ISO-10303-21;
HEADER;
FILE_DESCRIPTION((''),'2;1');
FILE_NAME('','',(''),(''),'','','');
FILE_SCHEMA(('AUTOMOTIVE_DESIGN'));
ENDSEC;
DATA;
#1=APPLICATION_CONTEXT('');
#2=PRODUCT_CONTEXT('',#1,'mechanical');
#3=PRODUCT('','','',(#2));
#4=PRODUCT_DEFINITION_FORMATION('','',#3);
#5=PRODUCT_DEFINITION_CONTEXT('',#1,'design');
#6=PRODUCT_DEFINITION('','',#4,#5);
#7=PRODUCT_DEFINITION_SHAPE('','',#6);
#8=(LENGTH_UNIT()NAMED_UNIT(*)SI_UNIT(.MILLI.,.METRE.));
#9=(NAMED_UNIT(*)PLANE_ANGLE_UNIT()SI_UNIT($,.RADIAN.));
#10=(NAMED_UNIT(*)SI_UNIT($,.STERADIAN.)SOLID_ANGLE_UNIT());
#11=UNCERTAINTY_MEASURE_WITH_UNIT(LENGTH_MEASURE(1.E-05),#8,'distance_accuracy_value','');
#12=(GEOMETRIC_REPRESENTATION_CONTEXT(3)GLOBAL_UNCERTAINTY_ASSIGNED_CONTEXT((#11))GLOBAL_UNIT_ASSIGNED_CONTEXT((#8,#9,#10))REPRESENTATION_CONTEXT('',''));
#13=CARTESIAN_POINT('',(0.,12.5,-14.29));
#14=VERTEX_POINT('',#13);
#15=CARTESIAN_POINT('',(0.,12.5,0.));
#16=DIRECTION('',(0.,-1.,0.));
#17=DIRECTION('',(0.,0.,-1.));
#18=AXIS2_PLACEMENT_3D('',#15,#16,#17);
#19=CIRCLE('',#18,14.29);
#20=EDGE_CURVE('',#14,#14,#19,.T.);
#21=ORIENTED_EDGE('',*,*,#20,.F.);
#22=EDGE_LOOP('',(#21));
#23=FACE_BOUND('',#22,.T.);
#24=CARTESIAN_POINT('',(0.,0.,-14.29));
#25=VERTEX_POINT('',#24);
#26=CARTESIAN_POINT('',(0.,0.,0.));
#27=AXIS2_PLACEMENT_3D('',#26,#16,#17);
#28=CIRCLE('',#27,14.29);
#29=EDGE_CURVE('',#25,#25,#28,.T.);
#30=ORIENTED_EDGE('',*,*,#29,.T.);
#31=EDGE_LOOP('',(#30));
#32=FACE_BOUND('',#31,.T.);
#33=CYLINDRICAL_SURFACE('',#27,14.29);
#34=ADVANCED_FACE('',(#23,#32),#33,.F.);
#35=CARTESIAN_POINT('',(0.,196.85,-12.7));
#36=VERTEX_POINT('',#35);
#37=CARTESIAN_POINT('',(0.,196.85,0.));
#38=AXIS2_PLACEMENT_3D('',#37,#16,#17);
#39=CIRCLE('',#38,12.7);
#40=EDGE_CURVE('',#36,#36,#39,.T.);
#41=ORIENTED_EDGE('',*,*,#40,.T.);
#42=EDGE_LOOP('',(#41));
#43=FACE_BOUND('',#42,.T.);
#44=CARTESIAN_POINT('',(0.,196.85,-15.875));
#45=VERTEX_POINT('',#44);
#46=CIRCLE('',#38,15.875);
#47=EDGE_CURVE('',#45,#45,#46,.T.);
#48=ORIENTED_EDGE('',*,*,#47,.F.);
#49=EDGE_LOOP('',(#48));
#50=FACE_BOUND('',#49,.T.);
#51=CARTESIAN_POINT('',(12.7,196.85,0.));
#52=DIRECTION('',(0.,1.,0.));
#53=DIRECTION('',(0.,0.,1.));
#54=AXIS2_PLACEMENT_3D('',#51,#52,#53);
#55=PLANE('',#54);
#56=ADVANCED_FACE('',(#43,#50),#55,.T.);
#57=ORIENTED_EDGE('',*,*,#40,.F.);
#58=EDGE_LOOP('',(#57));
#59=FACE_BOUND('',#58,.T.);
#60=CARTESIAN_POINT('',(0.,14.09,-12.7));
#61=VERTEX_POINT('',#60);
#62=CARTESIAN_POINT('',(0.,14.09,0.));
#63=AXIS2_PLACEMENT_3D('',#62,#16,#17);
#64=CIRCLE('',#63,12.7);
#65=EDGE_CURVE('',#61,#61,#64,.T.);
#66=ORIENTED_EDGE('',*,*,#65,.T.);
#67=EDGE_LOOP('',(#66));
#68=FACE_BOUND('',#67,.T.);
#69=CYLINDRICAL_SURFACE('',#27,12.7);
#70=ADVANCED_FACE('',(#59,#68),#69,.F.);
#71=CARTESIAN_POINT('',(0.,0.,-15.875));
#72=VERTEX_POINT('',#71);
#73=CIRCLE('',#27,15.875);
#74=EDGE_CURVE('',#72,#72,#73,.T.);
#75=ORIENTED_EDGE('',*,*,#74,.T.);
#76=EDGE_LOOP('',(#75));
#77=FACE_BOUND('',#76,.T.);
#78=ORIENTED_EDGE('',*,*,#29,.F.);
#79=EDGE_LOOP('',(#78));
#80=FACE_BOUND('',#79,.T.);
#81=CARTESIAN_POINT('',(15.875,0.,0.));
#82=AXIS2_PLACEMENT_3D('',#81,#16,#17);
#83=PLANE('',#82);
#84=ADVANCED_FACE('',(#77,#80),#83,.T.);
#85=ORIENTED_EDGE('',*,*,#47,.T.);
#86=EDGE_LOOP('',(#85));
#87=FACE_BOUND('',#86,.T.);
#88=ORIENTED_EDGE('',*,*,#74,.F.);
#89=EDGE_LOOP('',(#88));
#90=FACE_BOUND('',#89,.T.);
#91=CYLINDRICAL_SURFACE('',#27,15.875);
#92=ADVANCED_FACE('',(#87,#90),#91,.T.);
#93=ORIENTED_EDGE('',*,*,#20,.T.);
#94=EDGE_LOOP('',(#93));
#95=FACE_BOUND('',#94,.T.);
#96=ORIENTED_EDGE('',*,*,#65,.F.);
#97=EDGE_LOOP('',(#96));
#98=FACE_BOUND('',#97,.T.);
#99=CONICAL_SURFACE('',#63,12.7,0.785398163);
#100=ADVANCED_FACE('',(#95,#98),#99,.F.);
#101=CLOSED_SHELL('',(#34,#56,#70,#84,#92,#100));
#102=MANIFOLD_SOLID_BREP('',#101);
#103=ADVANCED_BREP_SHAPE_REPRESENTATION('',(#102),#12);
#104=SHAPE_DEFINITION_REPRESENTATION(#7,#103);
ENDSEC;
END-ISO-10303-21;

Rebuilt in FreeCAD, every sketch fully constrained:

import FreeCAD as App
import Part
import Sketcher
Q = App.Units.Quantity


def add_polygon(sketch, points):
    """Adds a closed chain of lines whose ends are joined by coincident constraints."""
    first, n = sketch.GeometryCount, len(points)
    for a, b in zip(points, points[1:] + points[:1]):
        sketch.addGeometry(Part.LineSegment(App.Vector(*a, 0), App.Vector(*b, 0)), False)
    for i in range(n):
        sketch.addConstraint(Sketcher.Constraint("Coincident", first + i, 2, first + (i + 1) % n, 1))

doc = App.newDocument("Part")
body = doc.addObject("PartDesign::Body", "Body")

# Sketch on XY plane
sketch1 = doc.addObject("Sketcher::SketchObject", "Sketch")
body.addObject(sketch1)
sketch1.AttachmentSupport = (doc.XY_Plane, [""])
sketch1.MapMode = "FlatFace"
add_polygon(sketch1, [(14.3, 12.5), (14.3, 0), (15.9, 0), (15.9, 196.8), (12.7, 196.8), (12.7, 14.1)])  # lines 0-5
sketch1.addConstraint([
    Sketcher.Constraint("Vertical", 0),
    Sketcher.Constraint("Horizontal", 1),
    Sketcher.Constraint("Vertical", 2),
    Sketcher.Constraint("Horizontal", 3),
    Sketcher.Constraint("Vertical", 4),
    Sketcher.Constraint("PointOnObject", 0, 2, -1),
    Sketcher.Constraint("Angle", 5, Q("-45 deg")),
    Sketcher.Constraint("DistanceY", 2, 1, 2, 2, Q("7.75 in")),
    Sketcher.Constraint("DistanceX", -1, 1, 3, 2, Q("0.5 in")),
    Sketcher.Constraint("DistanceX", 3, 2, 3, 1, Q("0.125 in")),
    Sketcher.Constraint("DistanceX", 1, 1, 1, 2, 1.585),
    Sketcher.Constraint("DistanceY", 0, 2, 0, 1, 12.5),
])
revolution = doc.addObject("PartDesign::Revolution", "Revolution")
body.addObject(revolution)
revolution.Profile = sketch1
revolution.ReferenceAxis = (sketch1, ["V_Axis"])
revolution.Angle = 360

doc.recompute()
